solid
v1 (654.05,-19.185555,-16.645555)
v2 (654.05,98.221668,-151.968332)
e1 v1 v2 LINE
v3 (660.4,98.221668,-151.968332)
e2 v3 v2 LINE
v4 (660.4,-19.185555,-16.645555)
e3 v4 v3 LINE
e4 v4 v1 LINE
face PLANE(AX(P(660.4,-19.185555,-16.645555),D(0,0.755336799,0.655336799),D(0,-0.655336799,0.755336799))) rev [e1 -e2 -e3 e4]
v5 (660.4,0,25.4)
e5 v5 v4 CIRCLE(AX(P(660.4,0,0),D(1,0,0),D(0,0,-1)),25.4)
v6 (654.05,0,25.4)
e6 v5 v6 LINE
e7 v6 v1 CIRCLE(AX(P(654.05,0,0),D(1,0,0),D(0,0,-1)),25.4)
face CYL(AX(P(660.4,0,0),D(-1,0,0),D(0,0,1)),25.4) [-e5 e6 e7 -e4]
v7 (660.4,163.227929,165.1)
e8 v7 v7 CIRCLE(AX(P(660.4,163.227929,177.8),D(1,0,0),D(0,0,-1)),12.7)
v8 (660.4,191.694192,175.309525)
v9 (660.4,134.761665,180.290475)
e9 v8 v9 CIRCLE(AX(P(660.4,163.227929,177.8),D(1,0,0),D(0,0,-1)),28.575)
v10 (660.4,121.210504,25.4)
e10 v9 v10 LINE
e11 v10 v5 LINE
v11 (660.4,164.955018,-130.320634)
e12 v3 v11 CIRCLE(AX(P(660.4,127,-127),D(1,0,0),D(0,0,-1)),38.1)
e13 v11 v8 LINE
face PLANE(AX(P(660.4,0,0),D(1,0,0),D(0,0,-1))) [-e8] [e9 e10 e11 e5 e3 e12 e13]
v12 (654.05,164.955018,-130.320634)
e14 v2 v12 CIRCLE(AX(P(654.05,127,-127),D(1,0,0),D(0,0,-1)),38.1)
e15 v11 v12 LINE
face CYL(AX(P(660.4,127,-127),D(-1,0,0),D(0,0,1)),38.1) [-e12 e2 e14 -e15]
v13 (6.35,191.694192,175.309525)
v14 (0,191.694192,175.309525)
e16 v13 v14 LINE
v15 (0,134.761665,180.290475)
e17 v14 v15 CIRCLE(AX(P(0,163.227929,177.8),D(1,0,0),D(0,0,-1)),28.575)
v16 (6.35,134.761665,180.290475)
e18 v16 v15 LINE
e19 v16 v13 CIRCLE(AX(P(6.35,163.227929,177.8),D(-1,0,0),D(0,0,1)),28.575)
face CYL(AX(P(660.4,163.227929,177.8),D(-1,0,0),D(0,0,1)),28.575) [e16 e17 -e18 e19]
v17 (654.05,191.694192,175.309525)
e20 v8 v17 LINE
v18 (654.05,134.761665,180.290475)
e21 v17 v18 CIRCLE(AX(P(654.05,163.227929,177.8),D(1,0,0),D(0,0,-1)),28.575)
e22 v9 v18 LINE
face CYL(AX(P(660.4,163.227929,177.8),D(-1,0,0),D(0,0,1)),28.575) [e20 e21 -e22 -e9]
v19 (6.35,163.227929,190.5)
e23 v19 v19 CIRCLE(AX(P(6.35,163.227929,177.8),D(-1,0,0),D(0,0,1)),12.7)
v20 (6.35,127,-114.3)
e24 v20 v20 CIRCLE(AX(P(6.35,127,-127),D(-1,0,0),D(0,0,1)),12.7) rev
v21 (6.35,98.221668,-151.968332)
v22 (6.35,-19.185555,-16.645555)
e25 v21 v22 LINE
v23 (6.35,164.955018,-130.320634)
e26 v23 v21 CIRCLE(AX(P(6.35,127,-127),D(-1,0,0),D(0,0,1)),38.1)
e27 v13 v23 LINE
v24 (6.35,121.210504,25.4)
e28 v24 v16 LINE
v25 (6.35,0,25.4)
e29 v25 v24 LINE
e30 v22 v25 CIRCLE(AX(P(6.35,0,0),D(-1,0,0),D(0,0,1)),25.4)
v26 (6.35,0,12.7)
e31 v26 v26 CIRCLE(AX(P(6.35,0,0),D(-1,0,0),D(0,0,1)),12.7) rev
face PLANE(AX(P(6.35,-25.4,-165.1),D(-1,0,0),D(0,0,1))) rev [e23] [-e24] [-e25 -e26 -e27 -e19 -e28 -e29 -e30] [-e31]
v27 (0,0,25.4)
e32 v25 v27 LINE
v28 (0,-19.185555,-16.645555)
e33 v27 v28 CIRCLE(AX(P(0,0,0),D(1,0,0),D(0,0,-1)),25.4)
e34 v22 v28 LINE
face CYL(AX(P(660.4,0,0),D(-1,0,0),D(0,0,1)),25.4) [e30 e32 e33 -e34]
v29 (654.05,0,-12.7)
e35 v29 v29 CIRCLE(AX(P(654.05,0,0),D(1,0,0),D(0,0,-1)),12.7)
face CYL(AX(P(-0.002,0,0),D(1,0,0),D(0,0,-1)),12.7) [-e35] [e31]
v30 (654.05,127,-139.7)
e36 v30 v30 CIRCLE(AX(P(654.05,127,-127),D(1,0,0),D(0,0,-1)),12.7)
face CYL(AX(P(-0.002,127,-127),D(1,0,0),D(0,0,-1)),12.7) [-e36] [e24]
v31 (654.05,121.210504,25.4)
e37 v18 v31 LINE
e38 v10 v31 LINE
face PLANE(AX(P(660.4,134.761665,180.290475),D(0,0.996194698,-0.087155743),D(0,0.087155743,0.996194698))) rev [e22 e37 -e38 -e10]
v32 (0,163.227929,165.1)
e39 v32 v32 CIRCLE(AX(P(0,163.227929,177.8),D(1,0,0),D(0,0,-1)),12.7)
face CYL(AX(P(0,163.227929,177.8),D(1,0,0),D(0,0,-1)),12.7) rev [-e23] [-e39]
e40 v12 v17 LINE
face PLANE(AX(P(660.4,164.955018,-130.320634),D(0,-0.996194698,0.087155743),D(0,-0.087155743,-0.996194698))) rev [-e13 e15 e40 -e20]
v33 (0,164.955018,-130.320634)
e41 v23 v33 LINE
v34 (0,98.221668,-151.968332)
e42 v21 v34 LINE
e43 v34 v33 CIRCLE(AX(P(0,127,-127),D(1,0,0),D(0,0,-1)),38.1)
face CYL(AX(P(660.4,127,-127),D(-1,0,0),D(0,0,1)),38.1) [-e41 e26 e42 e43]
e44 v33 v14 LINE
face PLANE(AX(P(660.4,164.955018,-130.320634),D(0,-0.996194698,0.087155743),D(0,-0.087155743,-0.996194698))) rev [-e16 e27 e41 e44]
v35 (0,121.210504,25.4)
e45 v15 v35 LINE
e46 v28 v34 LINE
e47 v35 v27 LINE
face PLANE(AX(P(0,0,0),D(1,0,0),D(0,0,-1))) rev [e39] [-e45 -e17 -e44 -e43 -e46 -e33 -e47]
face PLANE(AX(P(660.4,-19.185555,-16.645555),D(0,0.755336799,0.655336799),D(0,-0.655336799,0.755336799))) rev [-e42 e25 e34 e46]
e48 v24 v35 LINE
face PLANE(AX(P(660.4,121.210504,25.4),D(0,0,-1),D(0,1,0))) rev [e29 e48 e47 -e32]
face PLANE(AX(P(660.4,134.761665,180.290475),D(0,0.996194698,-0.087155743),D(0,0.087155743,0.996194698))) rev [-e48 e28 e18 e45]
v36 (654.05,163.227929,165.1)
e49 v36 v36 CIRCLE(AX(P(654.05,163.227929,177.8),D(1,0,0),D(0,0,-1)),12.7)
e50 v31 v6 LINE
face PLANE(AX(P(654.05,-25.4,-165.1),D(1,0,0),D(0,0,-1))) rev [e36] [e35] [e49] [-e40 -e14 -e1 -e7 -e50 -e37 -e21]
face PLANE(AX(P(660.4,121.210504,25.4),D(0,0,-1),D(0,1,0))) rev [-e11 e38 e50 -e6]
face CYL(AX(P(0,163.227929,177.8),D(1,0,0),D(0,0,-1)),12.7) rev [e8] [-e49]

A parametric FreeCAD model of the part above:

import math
import FreeCAD as App
import Part
import Sketcher
Q = App.Units.Quantity

doc = App.newDocument("Part")
body = doc.addObject("PartDesign::Body", "Body")
body.AllowCompound = True

sketch1 = body.newObject("Sketcher::SketchObject", "Sketch")
sketch1.AttachmentSupport = (doc.getObject("YZ_Plane"), [""])
sketch1.MapMode = "FlatFace"
sketch1.addGeometry(Part.LineSegment(App.Vector(135, 180, 0), App.Vector(121, 25, 0)), False)
sketch1.addGeometry(Part.LineSegment(App.Vector(121, 25, 0), App.Vector(0, 25, 0)), False)
sketch1.addGeometry(Part.ArcOfCircle(Part.Circle(App.Vector(0, 0, 0), App.Vector(0, 0, 1), 25), math.radians(90), math.radians(221)), False)
sketch1.addGeometry(Part.LineSegment(App.Vector(-19, -17, 0), App.Vector(98, -152, 0)), False)
sketch1.addGeometry(Part.ArcOfCircle(Part.Circle(App.Vector(127, -127, 0), App.Vector(0, 0, 1), 38), math.radians(-139), math.radians(-5)), False)
sketch1.addGeometry(Part.LineSegment(App.Vector(165, -130, 0), App.Vector(192, 175, 0)), False)
sketch1.addGeometry(Part.ArcOfCircle(Part.Circle(App.Vector(163, 178, 0), App.Vector(0, 0, 1), 29), math.radians(-5), math.radians(175)), False)
sketch1.addConstraint(Sketcher.Constraint("Coincident", 0, 2, 1, 1))
sketch1.addConstraint(Sketcher.Constraint("Tangent", 1, 2, 2, 1))
sketch1.addConstraint(Sketcher.Constraint("Tangent", 2, 2, 3, 1))
sketch1.addConstraint(Sketcher.Constraint("Tangent", 3, 2, 4, 1))
sketch1.addConstraint(Sketcher.Constraint("Tangent", 4, 2, 5, 1))
sketch1.addConstraint(Sketcher.Constraint("Tangent", 5, 2, 6, 1))
sketch1.addConstraint(Sketcher.Constraint("Tangent", 6, 2, 0, 1))
sketch1.addConstraint(Sketcher.Constraint("Horizontal", 1))
sketch1.addConstraint(Sketcher.Constraint("Coincident", 2, 3, -1, 1))
sketch1.addConstraint(Sketcher.Constraint("Parallel", 0, 5))
sketch1.addConstraint(Sketcher.Constraint("Radius", 2, Q("1 in")))
sketch1.addConstraint(Sketcher.Constraint("Radius", 4, Q("1.5 in")))
sketch1.addConstraint(Sketcher.Constraint("DistanceX", -1, 1, 4, 3, Q("5 in")))
sketch1.addConstraint(Sketcher.Constraint("DistanceY", 4, 3, -1, 1, Q("5 in")))
sketch1.addConstraint(Sketcher.Constraint("DistanceY", -1, 1, 6, 3, Q("7 in")))
sketch1.addConstraint(Sketcher.Constraint("Angle", 0, Q("-95 deg")))
sketch1.addConstraint(Sketcher.Constraint("Radius", 6, Q("1.125 in")))
pad1 = body.newObject("PartDesign::Pad", "Pad")
pad1.Profile = sketch1
pad1.Length = Q("26 in")

sketch2 = body.newObject("Sketcher::SketchObject", "Sketch001")
sketch2.AttachmentSupport = (doc.getObject("XZ_Plane"), [""])
sketch2.MapMode = "FlatFace"
sketch2.addGeometry(Part.LineSegment(App.Vector(6, -165, 0), App.Vector(6, 206, 0)), False)
sketch2.addGeometry(Part.LineSegment(App.Vector(6, 206, 0), App.Vector(654, 206, 0)), False)
sketch2.addGeometry(Part.LineSegment(App.Vector(654, 206, 0), App.Vector(654, -165, 0)), False)
sketch2.addGeometry(Part.LineSegment(App.Vector(654, -165, 0), App.Vector(6, -165, 0)), False)
sketch2.addConstraint(Sketcher.Constraint("Coincident", 0, 2, 1, 1))
sketch2.addConstraint(Sketcher.Constraint("Coincident", 1, 2, 2, 1))
sketch2.addConstraint(Sketcher.Constraint("Coincident", 2, 2, 3, 1))
sketch2.addConstraint(Sketcher.Constraint("Coincident", 3, 2, 0, 1))
sketch2.addConstraint(Sketcher.Constraint("Vertical", 0))
sketch2.addConstraint(Sketcher.Constraint("Horizontal", 1))
sketch2.addConstraint(Sketcher.Constraint("Vertical", 2))
sketch2.addConstraint(Sketcher.Constraint("Horizontal", 3))
sketch2.addConstraint(Sketcher.Constraint("DistanceX", 1, 1, 1, 2, Q("25.5 in")))
sketch2.addConstraint(Sketcher.Constraint("DistanceY", 2, 2, -1, 1, Q("6.5 in")))
sketch2.addConstraint(Sketcher.Constraint("DistanceY", 0, 1, 0, 2, Q("14.625 in")))
sketch2.addConstraint(Sketcher.Constraint("DistanceX", -1, 1, 0, 2, Q("0.25 in")))
pocket1 = body.newObject("PartDesign::Pocket", "Pocket")
pocket1.Profile = sketch2
pocket1.Type = "ThroughAll"
pocket1.Midplane = True

sketch3 = body.newObject("Sketcher::SketchObject", "Sketch002")
sketch3.AttachmentSupport = (doc.getObject("YZ_Plane"), [""])
sketch3.MapMode = "FlatFace"
sketch3.AttachmentOffset = App.Placement(App.Vector(0, 0, 26 * 25.4), App.Rotation())
sketch3.addGeometry(Part.Circle(App.Vector(127, -127, 0), App.Vector(0, 0, 1), 13), False)
sketch3.addConstraint(Sketcher.Constraint("Diameter", 0, Q("1 in")))
sketch3.addConstraint(Sketcher.Constraint("DistanceX", -1, 1, 0, 3, Q("5 in")))
sketch3.addConstraint(Sketcher.Constraint("DistanceY", 0, 3, -1, 1, Q("5 in")))
pad2 = body.newObject("PartDesign::Pad", "Pad001")
pad2.Profile = sketch3
pad2.Length = Q("25.75 in")
pad2.Reversed = True

sketch4 = body.newObject("Sketcher::SketchObject", "Sketch003")
sketch4.AttachmentSupport = (doc.getObject("YZ_Plane"), [""])
sketch4.MapMode = "FlatFace"
sketch4.AttachmentOffset = App.Placement(App.Vector(0, 0, 26 * 25.4), App.Rotation())
sketch4.addGeometry(Part.Circle(App.Vector(0, 0, 0), App.Vector(0, 0, 1), 13), False)
sketch4.addConstraint(Sketcher.Constraint("Coincident", 0, 3, -1, 1))
sketch4.addConstraint(Sketcher.Constraint("Diameter", 0, Q("1 in")))
pad3 = body.newObject("PartDesign::Pad", "Pad002")
pad3.Profile = sketch4
pad3.Length = Q("25.75 in")
pad3.Reversed = True

sketch5 = body.newObject("Sketcher::SketchObject", "Sketch004")
sketch5.AttachmentSupport = (doc.getObject("YZ_Plane"), [""])
sketch5.MapMode = "FlatFace"
sketch5.AttachmentOffset = App.Placement(App.Vector(0, 0, 26 * 25.4), App.Rotation())
sketch5.addGeometry(Part.Circle(App.Vector(163, 178, 0), App.Vector(0, 0, 1), 13), False)
sketch5.addConstraint(Sketcher.Constraint("Diameter", 0, Q("1 in")))
sketch5.addConstraint(Sketcher.Constraint("DistanceY", -1, 1, 0, 3, Q("7 in")))
sketch5.addConstraint(Sketcher.Constraint("DistanceX", -1, 1, 0, 3, 163.227929))
pocket2 = body.newObject("PartDesign::Pocket", "Pocket001")
pocket2.Profile = sketch5
pocket2.Type = "ThroughAll"
pocket2.Midplane = True

doc.recompute()
